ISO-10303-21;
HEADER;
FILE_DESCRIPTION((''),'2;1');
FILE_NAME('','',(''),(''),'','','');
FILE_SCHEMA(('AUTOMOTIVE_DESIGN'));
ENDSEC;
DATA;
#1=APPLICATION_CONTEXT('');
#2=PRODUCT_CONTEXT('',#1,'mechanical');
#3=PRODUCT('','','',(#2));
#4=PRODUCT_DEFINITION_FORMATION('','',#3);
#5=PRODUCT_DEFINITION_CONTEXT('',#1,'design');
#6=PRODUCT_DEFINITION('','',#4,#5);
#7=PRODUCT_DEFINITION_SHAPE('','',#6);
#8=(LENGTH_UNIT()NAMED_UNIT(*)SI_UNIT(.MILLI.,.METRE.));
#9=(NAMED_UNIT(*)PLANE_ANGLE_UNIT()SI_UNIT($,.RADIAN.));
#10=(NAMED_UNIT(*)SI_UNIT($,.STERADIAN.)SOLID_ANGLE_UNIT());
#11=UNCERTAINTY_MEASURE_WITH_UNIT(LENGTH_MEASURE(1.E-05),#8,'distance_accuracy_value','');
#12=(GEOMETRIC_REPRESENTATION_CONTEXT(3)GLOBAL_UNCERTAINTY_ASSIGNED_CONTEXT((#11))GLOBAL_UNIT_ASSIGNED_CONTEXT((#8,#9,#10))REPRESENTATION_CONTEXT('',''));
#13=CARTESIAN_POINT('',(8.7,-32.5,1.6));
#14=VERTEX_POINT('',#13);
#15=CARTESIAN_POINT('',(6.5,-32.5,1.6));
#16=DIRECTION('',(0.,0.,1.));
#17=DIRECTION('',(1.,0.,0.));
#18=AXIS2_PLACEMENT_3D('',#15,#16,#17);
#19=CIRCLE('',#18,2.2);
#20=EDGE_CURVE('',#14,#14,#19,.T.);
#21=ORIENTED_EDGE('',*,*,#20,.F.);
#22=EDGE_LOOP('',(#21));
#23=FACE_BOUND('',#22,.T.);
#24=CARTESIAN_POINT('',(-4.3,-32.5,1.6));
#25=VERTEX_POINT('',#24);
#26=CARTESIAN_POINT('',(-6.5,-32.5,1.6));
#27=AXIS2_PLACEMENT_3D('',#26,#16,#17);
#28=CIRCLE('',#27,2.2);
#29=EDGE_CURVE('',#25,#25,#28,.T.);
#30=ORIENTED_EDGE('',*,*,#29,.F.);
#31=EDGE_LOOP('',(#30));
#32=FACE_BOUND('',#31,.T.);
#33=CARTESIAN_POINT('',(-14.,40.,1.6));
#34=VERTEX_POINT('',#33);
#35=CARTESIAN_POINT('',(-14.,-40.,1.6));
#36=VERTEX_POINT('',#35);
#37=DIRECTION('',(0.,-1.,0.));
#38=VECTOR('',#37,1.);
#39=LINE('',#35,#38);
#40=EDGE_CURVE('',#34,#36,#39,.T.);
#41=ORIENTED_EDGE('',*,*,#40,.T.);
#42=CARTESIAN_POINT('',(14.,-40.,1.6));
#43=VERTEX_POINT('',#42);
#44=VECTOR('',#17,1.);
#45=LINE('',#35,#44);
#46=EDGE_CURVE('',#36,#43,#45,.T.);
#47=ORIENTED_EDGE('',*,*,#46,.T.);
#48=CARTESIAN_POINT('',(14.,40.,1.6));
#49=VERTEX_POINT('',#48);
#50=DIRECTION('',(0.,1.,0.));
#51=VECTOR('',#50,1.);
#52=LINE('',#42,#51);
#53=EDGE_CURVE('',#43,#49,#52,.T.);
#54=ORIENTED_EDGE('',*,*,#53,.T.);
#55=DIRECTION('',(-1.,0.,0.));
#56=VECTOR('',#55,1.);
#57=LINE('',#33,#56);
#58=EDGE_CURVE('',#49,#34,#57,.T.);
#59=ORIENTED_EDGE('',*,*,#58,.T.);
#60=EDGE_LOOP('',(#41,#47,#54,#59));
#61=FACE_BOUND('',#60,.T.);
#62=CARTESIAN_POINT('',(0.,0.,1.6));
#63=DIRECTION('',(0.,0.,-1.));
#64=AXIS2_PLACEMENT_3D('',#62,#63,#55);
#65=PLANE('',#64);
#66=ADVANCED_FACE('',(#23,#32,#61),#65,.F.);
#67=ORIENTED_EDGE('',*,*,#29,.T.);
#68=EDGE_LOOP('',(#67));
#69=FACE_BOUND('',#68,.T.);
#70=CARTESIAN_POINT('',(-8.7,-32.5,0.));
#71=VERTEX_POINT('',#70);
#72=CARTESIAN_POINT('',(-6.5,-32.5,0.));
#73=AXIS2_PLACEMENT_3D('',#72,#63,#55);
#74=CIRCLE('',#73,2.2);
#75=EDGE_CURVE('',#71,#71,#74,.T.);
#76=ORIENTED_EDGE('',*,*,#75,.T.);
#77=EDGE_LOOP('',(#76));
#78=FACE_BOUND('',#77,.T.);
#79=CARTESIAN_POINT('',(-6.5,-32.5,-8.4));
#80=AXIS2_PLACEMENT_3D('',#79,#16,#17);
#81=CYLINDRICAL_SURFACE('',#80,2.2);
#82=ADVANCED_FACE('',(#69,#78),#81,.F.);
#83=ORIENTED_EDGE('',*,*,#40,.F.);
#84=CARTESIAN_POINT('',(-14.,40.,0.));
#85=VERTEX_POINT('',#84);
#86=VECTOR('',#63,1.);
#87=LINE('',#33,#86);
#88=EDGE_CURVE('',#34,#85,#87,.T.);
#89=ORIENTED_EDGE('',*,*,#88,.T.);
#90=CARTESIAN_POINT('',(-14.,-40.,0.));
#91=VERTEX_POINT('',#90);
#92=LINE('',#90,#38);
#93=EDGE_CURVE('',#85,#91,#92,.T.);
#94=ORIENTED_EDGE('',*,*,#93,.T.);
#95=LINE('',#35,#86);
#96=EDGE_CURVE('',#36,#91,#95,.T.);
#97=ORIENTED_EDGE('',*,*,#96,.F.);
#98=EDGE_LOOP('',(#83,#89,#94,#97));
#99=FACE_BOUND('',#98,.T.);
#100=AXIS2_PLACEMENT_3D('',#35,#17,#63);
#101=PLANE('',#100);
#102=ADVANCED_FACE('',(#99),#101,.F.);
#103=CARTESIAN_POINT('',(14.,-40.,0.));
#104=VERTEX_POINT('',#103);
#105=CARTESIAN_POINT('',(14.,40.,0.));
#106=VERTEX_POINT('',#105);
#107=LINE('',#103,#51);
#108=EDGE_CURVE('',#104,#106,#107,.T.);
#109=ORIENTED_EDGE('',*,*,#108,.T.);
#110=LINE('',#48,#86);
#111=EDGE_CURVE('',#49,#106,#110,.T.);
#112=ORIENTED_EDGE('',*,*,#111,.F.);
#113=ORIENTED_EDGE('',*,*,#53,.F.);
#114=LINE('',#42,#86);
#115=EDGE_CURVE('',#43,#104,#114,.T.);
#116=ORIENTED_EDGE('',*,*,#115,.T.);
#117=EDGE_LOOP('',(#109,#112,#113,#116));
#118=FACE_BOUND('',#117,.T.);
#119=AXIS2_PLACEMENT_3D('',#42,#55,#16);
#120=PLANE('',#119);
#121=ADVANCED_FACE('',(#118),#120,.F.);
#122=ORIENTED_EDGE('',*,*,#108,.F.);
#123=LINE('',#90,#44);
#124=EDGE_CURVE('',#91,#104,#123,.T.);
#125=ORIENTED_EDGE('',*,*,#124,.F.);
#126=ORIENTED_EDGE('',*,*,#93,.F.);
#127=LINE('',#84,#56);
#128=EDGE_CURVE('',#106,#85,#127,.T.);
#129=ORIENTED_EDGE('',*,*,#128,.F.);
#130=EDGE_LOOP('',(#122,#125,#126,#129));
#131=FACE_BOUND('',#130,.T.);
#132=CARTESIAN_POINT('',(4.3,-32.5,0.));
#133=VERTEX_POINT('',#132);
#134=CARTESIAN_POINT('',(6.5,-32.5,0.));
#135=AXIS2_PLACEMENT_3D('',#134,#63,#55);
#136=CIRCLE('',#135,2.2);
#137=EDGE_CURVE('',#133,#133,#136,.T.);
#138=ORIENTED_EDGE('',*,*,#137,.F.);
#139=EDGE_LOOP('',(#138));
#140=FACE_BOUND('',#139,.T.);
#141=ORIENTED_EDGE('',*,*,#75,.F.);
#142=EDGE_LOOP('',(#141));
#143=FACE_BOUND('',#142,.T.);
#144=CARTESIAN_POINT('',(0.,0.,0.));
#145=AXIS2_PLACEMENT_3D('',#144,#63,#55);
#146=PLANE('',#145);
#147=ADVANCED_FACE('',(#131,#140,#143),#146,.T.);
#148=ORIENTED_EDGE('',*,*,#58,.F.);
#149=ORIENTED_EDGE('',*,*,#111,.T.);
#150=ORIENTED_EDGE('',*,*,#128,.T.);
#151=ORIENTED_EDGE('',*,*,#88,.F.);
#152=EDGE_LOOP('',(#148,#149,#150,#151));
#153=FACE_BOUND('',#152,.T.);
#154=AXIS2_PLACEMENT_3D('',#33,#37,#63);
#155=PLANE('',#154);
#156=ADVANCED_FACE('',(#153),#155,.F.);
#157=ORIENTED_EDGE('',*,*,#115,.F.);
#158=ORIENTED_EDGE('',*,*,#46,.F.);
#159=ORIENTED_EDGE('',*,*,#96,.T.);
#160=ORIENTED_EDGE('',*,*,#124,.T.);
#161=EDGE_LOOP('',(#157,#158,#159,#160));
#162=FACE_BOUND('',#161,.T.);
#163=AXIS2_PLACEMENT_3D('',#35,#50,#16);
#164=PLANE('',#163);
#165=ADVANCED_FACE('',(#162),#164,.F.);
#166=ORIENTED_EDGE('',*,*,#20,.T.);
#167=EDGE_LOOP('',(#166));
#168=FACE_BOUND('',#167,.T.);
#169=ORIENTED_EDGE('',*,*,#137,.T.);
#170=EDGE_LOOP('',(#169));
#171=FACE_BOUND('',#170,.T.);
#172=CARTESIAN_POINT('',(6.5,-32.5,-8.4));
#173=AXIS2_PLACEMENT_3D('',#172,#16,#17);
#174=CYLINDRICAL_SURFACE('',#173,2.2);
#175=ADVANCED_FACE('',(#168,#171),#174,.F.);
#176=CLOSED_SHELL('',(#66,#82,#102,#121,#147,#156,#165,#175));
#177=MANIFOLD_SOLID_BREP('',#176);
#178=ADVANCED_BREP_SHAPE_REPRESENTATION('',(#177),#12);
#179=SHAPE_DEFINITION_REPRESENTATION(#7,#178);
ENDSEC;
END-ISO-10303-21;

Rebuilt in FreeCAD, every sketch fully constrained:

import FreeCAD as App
import Part
import Sketcher
Q = App.Units.Quantity

doc = App.newDocument("Part")
body = doc.addObject("PartDesign::Body", "Body")

# Sketch on XY plane
sketch1 = doc.addObject("Sketcher::SketchObject", "Sketch")
body.addObject(sketch1)
sketch1.AttachmentSupport = (doc.XY_Plane, [""])
sketch1.MapMode = "FlatFace"
sketch1.addGeometry(Part.LineSegment(App.Vector(-14, 40, 0), App.Vector(-14, -40, 0)), False)
sketch1.addGeometry(Part.LineSegment(App.Vector(-14, -40, 0), App.Vector(14, -40, 0)), False)
sketch1.addGeometry(Part.LineSegment(App.Vector(14, -40, 0), App.Vector(14, 40, 0)), False)
sketch1.addGeometry(Part.LineSegment(App.Vector(14, 40, 0), App.Vector(-14, 40, 0)), False)
sketch1.addConstraint(Sketcher.Constraint("Coincident", 0, 2, 1, 1))
sketch1.addConstraint(Sketcher.Constraint("Coincident", 1, 2, 2, 1))
sketch1.addConstraint(Sketcher.Constraint("Coincident", 2, 2, 3, 1))
sketch1.addConstraint(Sketcher.Constraint("Coincident", 3, 2, 0, 1))
sketch1.addConstraint(Sketcher.Constraint("Vertical", 0))
sketch1.addConstraint(Sketcher.Constraint("Horizontal", 1))
sketch1.addConstraint(Sketcher.Constraint("Vertical", 2))
sketch1.addConstraint(Sketcher.Constraint("Horizontal", 3))
sketch1.addConstraint(Sketcher.Constraint("Symmetric", 0, 2, 2, 2, -1, 1))
sketch1.addConstraint(Sketcher.Constraint("DistanceX", 1, 1, 1, 2, Q("28 mm")))
sketch1.addConstraint(Sketcher.Constraint("DistanceY", 0, 2, 0, 1, Q("80 mm")))
pad1 = doc.addObject("PartDesign::Pad", "Pad")
body.addObject(pad1)
pad1.Profile = sketch1
pad1.Length = 1.6

# Sketch on XY plane
sketch2 = doc.addObject("Sketcher::SketchObject", "Sketch001")
body.addObject(sketch2)
sketch2.AttachmentSupport = (doc.XY_Plane, [""])
sketch2.MapMode = "FlatFace"
sketch2.AttachmentOffset = App.Placement(App.Vector(0, 0, 1.6), App.Rotation())
sketch2.addGeometry(Part.Circle(App.Vector(6.5, -32.5, 0), App.Vector(0, 0, 1), 2.2), False)
sketch2.addGeometry(Part.Circle(App.Vector(-6.5, -32.5, 0), App.Vector(0, 0, 1), 2.2), False)
sketch2.addConstraint(Sketcher.Constraint("Equal", 0, 1))
sketch2.addConstraint(Sketcher.Constraint("Symmetric", 0, 3, 1, 3, -2))
sketch2.addConstraint(Sketcher.Constraint("Diameter", 0, Q("4.4 mm")))
sketch2.addConstraint(Sketcher.Constraint("DistanceX", 1, 3, 0, 3, Q("13 mm")))
sketch2.addConstraint(Sketcher.Constraint("DistanceY", 0, 3, -1, 1, Q("32.5 mm")))
pocket1 = doc.addObject("PartDesign::Pocket", "Pocket")
body.addObject(pocket1)
pocket1.Profile = sketch2
pocket1.Length = 10

doc.recompute()
